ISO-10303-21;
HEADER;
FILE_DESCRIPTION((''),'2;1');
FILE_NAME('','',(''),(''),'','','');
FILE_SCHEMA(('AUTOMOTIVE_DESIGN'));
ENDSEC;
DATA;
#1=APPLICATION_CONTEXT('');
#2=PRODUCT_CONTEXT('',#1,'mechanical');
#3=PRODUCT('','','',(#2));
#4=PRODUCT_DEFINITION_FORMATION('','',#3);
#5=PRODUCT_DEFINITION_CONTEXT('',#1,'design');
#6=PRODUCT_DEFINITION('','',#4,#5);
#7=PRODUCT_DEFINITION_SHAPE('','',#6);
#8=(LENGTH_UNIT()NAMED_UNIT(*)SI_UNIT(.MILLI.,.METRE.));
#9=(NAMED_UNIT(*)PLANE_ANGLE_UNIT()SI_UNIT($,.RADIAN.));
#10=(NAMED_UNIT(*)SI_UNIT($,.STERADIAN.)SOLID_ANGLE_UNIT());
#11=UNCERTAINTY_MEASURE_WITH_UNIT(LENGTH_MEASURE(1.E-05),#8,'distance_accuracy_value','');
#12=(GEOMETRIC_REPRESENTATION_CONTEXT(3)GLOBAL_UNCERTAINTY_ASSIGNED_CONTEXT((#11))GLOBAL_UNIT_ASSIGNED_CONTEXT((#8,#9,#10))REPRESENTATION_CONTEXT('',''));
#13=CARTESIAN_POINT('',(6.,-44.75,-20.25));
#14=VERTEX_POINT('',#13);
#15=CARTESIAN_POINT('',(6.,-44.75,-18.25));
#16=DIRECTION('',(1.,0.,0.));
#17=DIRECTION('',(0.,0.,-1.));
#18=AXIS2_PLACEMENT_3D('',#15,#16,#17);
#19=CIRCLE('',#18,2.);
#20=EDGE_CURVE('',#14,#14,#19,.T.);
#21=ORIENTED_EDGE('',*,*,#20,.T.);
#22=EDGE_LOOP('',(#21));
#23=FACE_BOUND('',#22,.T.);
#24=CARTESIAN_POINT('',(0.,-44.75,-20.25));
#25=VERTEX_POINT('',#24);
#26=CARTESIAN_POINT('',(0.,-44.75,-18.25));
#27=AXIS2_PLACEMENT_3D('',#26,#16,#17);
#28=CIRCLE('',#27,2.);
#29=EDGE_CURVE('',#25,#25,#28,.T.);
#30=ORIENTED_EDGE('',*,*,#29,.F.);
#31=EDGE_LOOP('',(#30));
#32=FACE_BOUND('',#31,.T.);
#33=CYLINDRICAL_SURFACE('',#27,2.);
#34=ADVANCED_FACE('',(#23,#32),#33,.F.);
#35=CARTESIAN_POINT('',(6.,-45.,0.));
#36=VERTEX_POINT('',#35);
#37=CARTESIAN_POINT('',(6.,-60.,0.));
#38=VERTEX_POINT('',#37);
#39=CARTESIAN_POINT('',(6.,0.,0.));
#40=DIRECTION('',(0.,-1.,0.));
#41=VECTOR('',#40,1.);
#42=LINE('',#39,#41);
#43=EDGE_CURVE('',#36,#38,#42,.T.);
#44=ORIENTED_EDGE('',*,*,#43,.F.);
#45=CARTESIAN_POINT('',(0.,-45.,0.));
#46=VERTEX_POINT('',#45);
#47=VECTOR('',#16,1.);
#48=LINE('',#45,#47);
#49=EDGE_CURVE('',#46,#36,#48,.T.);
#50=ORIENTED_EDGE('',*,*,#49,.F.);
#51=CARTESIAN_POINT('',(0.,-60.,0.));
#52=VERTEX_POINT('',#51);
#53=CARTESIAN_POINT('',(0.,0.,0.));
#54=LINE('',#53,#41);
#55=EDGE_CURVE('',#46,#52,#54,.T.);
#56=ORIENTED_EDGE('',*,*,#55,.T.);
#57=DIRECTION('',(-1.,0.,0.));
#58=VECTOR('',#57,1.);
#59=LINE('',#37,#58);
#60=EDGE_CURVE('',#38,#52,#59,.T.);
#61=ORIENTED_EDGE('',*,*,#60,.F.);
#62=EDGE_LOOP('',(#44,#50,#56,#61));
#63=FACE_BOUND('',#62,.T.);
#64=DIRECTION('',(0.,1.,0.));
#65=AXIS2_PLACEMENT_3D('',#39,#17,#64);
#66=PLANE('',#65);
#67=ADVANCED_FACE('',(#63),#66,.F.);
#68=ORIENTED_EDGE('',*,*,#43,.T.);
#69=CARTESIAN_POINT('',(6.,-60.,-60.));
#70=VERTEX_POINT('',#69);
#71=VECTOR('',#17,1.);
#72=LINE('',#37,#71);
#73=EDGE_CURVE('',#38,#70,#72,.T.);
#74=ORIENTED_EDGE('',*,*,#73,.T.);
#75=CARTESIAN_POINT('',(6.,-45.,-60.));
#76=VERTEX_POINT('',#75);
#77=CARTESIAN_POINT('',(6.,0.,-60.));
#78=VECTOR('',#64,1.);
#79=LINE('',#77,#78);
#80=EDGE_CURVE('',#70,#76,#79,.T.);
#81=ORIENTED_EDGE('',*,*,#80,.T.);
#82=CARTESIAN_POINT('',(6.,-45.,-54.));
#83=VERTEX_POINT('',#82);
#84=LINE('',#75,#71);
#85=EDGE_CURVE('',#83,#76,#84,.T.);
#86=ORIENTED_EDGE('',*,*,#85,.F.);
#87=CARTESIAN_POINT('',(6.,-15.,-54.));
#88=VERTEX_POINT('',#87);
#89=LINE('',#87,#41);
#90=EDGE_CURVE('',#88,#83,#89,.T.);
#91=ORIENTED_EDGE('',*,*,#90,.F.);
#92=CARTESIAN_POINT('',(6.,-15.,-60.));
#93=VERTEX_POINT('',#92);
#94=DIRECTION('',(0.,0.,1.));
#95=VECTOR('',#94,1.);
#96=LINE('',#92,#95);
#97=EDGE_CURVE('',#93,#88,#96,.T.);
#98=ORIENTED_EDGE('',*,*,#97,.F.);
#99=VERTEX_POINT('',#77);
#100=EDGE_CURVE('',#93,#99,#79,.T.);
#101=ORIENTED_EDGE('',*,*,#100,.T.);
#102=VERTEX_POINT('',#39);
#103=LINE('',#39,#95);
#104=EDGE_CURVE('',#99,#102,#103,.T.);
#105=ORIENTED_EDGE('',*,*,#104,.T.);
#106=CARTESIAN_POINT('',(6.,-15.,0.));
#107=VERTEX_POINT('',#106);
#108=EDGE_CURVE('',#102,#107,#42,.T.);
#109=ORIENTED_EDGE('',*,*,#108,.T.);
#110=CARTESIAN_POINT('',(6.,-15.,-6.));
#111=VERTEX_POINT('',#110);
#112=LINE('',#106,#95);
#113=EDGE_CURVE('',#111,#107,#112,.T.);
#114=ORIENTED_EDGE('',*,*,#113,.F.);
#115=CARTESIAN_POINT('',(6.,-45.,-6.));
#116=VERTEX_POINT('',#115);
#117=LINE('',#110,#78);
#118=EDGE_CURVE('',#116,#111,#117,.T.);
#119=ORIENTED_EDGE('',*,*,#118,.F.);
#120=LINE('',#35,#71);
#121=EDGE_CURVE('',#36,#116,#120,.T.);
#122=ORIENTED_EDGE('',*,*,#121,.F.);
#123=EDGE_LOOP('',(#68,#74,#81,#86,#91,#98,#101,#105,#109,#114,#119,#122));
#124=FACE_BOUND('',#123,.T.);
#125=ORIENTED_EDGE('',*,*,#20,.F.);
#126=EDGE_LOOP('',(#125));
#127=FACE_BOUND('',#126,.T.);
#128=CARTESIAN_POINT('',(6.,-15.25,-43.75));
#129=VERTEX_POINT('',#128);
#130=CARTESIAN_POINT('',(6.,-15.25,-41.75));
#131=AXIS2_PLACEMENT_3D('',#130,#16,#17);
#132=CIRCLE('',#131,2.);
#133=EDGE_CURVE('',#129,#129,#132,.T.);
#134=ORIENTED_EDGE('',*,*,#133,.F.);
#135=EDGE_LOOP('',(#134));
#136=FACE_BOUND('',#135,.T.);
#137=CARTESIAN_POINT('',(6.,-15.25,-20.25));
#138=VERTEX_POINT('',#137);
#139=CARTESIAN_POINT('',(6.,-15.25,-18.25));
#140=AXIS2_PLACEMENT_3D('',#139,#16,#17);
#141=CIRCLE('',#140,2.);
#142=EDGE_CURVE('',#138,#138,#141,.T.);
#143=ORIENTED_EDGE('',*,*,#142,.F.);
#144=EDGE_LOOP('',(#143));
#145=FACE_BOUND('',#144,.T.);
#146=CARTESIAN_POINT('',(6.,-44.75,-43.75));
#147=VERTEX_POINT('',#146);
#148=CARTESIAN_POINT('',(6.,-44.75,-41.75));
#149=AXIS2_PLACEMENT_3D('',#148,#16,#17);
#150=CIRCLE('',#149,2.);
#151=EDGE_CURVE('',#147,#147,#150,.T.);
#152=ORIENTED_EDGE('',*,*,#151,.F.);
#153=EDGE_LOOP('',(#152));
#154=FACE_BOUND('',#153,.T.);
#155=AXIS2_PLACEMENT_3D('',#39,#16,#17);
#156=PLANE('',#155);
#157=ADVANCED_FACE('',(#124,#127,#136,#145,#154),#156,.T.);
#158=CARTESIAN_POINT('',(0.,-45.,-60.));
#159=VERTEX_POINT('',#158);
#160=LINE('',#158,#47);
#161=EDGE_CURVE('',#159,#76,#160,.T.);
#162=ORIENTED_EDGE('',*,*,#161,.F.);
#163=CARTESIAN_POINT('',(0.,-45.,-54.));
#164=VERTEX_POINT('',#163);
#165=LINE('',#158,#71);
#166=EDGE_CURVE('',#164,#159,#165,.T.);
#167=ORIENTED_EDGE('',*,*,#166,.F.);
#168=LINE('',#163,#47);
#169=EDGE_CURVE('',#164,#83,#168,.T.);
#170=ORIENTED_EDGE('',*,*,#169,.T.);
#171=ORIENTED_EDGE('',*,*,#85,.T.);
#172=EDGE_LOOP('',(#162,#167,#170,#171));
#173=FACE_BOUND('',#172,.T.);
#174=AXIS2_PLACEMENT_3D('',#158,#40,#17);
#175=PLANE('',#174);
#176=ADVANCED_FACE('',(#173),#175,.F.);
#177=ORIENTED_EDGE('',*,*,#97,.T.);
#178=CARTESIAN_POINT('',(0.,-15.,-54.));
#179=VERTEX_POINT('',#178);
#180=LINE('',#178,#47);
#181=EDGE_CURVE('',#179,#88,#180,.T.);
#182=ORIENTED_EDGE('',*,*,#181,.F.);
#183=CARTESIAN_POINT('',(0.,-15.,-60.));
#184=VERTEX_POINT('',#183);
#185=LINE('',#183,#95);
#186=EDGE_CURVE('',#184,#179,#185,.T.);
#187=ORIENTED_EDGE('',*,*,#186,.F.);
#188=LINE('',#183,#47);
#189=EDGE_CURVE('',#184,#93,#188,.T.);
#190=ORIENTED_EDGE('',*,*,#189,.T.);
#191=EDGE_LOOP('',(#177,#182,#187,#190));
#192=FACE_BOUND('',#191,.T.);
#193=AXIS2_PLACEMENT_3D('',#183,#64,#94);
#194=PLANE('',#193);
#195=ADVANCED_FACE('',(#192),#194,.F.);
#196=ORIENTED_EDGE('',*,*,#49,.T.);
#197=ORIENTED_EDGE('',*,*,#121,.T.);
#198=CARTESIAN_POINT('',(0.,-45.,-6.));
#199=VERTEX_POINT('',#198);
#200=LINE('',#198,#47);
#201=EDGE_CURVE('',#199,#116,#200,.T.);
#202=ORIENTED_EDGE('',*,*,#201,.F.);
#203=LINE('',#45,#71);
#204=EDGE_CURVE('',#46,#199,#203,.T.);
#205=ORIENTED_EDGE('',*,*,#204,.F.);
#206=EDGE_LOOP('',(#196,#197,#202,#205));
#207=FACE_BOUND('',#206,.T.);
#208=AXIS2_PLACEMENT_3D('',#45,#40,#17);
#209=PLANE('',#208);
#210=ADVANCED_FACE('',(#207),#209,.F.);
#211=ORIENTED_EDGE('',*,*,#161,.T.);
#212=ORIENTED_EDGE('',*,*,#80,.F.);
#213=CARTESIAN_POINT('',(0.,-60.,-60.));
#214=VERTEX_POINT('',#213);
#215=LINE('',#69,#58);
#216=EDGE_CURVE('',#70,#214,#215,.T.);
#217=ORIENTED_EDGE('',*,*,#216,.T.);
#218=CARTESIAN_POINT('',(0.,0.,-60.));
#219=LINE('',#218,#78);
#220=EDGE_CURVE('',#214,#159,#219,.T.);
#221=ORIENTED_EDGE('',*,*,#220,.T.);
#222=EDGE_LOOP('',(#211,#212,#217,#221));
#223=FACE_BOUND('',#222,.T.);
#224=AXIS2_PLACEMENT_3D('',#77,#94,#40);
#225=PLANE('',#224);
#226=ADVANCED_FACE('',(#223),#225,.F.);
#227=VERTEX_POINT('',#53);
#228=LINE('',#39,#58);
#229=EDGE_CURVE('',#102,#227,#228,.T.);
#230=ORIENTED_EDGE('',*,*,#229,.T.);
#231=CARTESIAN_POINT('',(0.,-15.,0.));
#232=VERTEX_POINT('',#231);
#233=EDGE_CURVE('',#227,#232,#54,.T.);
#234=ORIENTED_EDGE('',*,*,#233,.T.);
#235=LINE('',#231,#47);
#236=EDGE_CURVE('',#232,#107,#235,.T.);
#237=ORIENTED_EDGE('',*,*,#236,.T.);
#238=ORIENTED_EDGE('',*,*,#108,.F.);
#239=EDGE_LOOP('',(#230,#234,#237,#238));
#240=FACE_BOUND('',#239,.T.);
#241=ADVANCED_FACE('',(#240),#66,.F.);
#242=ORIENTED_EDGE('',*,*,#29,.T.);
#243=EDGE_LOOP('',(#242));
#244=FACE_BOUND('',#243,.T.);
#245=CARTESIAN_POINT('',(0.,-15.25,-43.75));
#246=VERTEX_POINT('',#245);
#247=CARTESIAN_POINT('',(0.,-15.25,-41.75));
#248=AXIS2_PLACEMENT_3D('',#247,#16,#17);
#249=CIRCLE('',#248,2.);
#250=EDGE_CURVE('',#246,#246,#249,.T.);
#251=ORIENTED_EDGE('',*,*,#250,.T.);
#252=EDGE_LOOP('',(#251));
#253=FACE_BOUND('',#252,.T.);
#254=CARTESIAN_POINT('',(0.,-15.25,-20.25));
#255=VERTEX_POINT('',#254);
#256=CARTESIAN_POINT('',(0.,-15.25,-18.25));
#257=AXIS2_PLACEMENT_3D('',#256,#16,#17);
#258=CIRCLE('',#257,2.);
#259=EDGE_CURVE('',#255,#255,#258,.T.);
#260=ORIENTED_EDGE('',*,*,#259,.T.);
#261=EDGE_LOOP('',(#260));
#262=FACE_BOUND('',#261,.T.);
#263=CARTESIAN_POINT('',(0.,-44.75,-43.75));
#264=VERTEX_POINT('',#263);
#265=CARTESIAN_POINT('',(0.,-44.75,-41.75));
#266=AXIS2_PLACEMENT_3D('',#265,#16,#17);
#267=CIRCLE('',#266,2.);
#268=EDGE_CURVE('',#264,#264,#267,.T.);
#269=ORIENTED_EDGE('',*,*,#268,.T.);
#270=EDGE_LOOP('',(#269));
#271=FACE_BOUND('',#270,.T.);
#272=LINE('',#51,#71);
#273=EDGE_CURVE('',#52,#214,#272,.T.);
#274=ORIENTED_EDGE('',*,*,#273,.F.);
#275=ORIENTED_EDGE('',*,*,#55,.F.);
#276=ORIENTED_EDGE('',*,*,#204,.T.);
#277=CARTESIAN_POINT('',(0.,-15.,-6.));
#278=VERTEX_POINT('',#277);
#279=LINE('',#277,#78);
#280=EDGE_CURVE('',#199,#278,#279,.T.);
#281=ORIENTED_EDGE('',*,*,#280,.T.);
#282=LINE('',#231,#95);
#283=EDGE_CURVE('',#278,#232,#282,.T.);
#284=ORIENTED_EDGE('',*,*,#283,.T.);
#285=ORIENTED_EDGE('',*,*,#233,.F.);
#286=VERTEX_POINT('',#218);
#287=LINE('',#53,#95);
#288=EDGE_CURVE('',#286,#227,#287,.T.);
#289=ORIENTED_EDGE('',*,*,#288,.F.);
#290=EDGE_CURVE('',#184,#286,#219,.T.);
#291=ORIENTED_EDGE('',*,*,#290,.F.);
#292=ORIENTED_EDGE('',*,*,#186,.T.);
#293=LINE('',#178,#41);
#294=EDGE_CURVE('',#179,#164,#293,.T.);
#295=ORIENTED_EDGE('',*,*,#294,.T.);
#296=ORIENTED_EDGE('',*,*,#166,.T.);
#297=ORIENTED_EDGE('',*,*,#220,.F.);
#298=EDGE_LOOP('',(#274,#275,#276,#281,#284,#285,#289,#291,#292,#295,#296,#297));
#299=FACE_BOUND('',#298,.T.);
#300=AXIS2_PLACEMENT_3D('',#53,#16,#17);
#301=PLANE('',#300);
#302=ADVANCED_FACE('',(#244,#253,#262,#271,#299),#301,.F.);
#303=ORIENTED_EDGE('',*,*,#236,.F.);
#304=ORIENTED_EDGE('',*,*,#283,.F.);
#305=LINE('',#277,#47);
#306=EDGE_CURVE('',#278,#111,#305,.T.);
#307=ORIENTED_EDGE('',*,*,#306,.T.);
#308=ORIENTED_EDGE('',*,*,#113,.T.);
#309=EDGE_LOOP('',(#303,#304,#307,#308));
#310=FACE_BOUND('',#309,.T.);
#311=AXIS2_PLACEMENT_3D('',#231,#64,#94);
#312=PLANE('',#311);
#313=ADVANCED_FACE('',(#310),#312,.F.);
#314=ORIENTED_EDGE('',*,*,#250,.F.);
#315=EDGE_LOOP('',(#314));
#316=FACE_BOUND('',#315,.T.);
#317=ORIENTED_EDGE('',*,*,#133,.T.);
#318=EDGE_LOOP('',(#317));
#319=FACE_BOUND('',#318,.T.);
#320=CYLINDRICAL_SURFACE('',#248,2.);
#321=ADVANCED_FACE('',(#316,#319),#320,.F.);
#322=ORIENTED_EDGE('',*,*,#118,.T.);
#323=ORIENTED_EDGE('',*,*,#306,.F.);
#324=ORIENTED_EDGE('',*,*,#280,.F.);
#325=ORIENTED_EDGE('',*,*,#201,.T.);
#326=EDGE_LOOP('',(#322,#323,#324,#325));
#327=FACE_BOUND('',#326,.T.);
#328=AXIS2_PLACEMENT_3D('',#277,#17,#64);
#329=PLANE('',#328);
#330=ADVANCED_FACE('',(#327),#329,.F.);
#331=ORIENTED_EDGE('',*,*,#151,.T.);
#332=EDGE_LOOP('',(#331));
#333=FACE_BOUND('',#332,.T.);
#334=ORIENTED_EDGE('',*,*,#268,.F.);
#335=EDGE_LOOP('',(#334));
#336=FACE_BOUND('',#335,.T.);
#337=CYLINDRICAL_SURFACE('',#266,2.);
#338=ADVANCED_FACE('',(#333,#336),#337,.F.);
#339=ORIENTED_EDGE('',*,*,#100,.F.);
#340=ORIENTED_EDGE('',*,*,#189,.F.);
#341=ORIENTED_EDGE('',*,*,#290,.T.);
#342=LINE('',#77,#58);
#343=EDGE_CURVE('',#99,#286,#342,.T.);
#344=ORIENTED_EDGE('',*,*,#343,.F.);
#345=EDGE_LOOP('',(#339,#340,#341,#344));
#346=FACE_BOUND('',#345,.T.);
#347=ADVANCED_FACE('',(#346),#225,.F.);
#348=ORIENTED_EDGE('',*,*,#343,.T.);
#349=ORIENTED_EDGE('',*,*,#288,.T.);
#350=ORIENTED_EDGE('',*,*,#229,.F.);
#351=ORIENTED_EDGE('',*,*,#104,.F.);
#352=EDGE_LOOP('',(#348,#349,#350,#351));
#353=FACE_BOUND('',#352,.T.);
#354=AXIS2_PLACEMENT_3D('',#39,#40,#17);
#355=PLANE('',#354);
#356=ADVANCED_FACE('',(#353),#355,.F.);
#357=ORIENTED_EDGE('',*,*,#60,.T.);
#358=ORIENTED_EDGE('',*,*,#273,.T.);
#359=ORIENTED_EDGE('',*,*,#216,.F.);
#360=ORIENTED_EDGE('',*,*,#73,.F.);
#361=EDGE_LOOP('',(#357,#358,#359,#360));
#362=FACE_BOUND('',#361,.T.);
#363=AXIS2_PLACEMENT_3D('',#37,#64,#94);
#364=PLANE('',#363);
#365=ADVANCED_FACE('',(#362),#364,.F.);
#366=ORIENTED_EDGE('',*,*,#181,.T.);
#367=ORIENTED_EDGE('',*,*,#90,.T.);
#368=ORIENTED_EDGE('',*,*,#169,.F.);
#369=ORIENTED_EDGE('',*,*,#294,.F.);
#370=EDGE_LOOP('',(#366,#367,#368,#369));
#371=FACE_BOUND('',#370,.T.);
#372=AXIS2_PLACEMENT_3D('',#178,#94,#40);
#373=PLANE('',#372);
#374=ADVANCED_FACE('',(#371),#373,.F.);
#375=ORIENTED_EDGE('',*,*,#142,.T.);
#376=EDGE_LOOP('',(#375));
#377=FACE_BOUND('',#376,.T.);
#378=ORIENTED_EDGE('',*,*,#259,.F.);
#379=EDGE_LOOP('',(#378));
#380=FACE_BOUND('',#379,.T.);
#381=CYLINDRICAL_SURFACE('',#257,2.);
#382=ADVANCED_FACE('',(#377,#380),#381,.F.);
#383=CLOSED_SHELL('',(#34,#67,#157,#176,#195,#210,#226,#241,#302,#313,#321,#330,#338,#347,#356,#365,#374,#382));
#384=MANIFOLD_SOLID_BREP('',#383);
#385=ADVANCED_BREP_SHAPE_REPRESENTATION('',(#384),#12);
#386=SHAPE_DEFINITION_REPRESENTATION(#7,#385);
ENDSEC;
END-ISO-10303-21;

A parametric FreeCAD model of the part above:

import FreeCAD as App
import Part
import Sketcher

V = App.Vector

doc = App.newDocument("Part")
body = doc.addObject("PartDesign::Body", "Body")

sketch1 = body.newObject("Sketcher::SketchObject", "Sketch")
sketch1.AttachmentSupport = (doc.getObject("YZ_Plane"), [""])
sketch1.MapMode = "FlatFace"
sketch1.addGeometry([
    Part.LineSegment(V(0, 0, 0), V(-60, 0, 0)),
    Part.LineSegment(V(-60, 0, 0), V(-60, -60, 0)),
    Part.LineSegment(V(-60, -60, 0), V(0, -60, 0)),
    Part.LineSegment(V(0, -60, 0), V(0, 0, 0)),
], False)
sketch1.addConstraint([
    Sketcher.Constraint("Coincident", 0, 2, 1, 1),
    Sketcher.Constraint("Coincident", 1, 2, 2, 1),
    Sketcher.Constraint("Coincident", 2, 2, 3, 1),
    Sketcher.Constraint("Coincident", 3, 2, 0, 1),
    Sketcher.Constraint("Horizontal", 0),
    Sketcher.Constraint("Vertical", 1),
    Sketcher.Constraint("Horizontal", 2),
    Sketcher.Constraint("Vertical", 3),
    Sketcher.Constraint("Coincident", 3, 2, -1, 1),
    Sketcher.Constraint("Equal", 2, 1),
    Sketcher.Constraint("DistanceX", 0, 2, 0, 1, 60.0),
])
pad1 = body.newObject("PartDesign::Pad", "Pad")
pad1.Profile = sketch1
pad1.Length = 6

sketch2 = body.newObject("Sketcher::SketchObject", "Sketch001")
sketch2.AttachmentSupport = (doc.getObject("YZ_Plane"), [""])
sketch2.MapMode = "FlatFace"
sketch2.AttachmentOffset = App.Placement(V(0, 0, 6), App.Rotation())
sketch2.addGeometry([
    Part.LineSegment(V(-15, 0, 0), V(-45, 0, 0)),
    Part.LineSegment(V(-45, 0, 0), V(-45, -6, 0)),
    Part.LineSegment(V(-45, -6, 0), V(-15, -6, 0)),
    Part.LineSegment(V(-15, -6, 0), V(-15, 0, 0)),
    Part.LineSegment(V(-15, -54, 0), V(-45, -54, 0)),
    Part.LineSegment(V(-45, -54, 0), V(-45, -60, 0)),
    Part.LineSegment(V(-45, -60, 0), V(-15, -60, 0)),
    Part.LineSegment(V(-15, -60, 0), V(-15, -54, 0)),
], False)
sketch2.addConstraint([
    Sketcher.Constraint("Coincident", 0, 2, 1, 1),
    Sketcher.Constraint("Coincident", 1, 2, 2, 1),
    Sketcher.Constraint("Coincident", 2, 2, 3, 1),
    Sketcher.Constraint("Coincident", 3, 2, 0, 1),
    Sketcher.Constraint("Coincident", 4, 2, 5, 1),
    Sketcher.Constraint("Coincident", 5, 2, 6, 1),
    Sketcher.Constraint("Coincident", 6, 2, 7, 1),
    Sketcher.Constraint("Coincident", 7, 2, 4, 1),
    Sketcher.Constraint("Horizontal", 0),
    Sketcher.Constraint("Vertical", 1),
    Sketcher.Constraint("Horizontal", 2),
    Sketcher.Constraint("Vertical", 3),
    Sketcher.Constraint("Horizontal", 4),
    Sketcher.Constraint("Vertical", 5),
    Sketcher.Constraint("Horizontal", 6),
    Sketcher.Constraint("Vertical", 7),
    Sketcher.Constraint("PointOnObject", 0, 2, -1),
    Sketcher.Constraint("Vertical", 1, 2, 4, 2),
    Sketcher.Constraint("Vertical", 3, 2, 6, 2),
    Sketcher.Constraint("Equal", 3, 5),
    Sketcher.Constraint("DistanceX", 0, 2, 0, 1, 30.0),
    Sketcher.Constraint("DistanceY", 1, 2, 1, 1, 6.0),
    Sketcher.Constraint("DistanceX", 0, 2, -1, 1, 45.0),
    Sketcher.Constraint("DistanceY", 4, 2, -1, 1, 54.0),
])
pocket1 = body.newObject("PartDesign::Pocket", "Pocket")
pocket1.Profile = sketch2
pocket1.Length = 6

sketch3 = body.newObject("Sketcher::SketchObject", "Sketch002")
sketch3.AttachmentSupport = (doc.getObject("YZ_Plane"), [""])
sketch3.MapMode = "FlatFace"
sketch3.AttachmentOffset = App.Placement(V(0, 0, 6), App.Rotation())
sketch3.addGeometry([
    Part.Circle(V(-15.2, -18.2, 0), V(0, 0, 1), 2),
    Part.Circle(V(-15.2, -41.8, 0), V(0, 0, 1), 2),
    Part.Circle(V(-44.8, -41.8, 0), V(0, 0, 1), 2),
    Part.Circle(V(-44.8, -18.2, 0), V(0, 0, 1), 2),
], False)
sketch3.addConstraint([
    Sketcher.Constraint("Equal", 0, 1),
    Sketcher.Constraint("Equal", 1, 2),
    Sketcher.Constraint("Equal", 2, 3),
    Sketcher.Constraint("Horizontal", 1, 3, 2, 3),
    Sketcher.Constraint("Horizontal", 0, 3, 3, 3),
    Sketcher.Constraint("Vertical", 0, 3, 1, 3),
    Sketcher.Constraint("Vertical", 2, 3, 3, 3),
    Sketcher.Constraint("Diameter", 0, 4.0),
    Sketcher.Constraint("DistanceY", 1, 3, 0, 3, 23.5),
    Sketcher.Constraint("DistanceX", 2, 3, 1, 3, 29.5),
    Sketcher.Constraint("DistanceX", 0, 3, -1, 1, 15.25),
    Sketcher.Constraint("DistanceY", 0, 3, -1, 1, 18.25),
])
pocket2 = body.newObject("PartDesign::Pocket", "Pocket001")
pocket2.Profile = sketch3
pocket2.Length = 6

doc.recompute()
